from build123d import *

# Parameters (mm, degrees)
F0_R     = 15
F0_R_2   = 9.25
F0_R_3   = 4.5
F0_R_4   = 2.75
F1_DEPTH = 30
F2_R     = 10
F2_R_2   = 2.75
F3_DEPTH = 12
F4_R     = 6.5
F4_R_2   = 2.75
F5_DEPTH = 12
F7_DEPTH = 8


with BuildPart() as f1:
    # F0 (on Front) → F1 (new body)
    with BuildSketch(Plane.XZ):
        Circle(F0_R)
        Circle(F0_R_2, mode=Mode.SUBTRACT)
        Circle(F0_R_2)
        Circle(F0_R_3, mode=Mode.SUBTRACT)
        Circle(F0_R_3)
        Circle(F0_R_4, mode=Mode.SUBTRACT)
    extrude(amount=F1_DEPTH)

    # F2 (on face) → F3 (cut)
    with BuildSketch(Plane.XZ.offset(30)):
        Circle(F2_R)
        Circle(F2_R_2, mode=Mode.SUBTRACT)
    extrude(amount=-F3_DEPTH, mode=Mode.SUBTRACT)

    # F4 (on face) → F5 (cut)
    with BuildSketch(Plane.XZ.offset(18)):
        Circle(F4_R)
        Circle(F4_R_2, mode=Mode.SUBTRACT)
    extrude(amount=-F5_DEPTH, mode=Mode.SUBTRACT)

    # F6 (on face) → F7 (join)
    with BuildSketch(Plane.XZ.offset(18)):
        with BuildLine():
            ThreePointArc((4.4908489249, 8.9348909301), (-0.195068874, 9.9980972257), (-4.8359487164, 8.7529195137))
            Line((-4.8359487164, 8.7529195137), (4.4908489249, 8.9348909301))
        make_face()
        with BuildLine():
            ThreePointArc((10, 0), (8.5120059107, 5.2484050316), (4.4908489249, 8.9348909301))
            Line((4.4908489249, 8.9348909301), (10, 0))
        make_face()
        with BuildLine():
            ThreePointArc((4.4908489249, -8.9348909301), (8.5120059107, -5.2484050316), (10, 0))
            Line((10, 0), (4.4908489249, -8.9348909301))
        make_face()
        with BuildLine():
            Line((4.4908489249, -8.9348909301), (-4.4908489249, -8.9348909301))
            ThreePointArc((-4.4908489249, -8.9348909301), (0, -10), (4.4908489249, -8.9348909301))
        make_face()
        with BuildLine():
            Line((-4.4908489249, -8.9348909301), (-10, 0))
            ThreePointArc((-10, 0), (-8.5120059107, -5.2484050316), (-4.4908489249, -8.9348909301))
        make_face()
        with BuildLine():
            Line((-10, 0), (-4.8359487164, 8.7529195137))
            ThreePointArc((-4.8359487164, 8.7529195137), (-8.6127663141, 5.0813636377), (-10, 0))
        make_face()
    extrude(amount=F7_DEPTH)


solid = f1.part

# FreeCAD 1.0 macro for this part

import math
import FreeCAD as App
import Part
import Sketcher
Q = App.Units.Quantity

doc = App.newDocument("Part")
body = doc.addObject("PartDesign::Body", "Body")

sketch1 = body.newObject("Sketcher::SketchObject", "Sketch")
sketch1.AttachmentSupport = (doc.getObject("XZ_Plane"), [""])
sketch1.MapMode = "FlatFace"
sketch1.addGeometry(Part.Circle(App.Vector(0, 0, 0), App.Vector(0, 0, 1), 15), False)
sketch1.addGeometry(Part.Circle(App.Vector(0, 0, 0), App.Vector(0, 0, 1), 2.8), False)
sketch1.addConstraint(Sketcher.Constraint("Coincident", 0, 3, -1, 1))
sketch1.addConstraint(Sketcher.Constraint("Coincident", 1, 3, -1, 1))
sketch1.addConstraint(Sketcher.Constraint("Diameter", 0, Q("30 mm")))
sketch1.addConstraint(Sketcher.Constraint("Diameter", 1, Q("5.5 mm")))
pad1 = body.newObject("PartDesign::Pad", "Pad")
pad1.Profile = sketch1
pad1.Length = 30

sketch2 = body.newObject("Sketcher::SketchObject", "Sketch001")
sketch2.AttachmentSupport = (doc.getObject("XZ_Plane"), [""])
sketch2.MapMode = "FlatFace"
sketch2.AttachmentOffset = App.Placement(App.Vector(0, 0, 30), App.Rotation())
sketch2.addGeometry(Part.Circle(App.Vector(0, 0, 0), App.Vector(0, 0, 1), 10), False)
sketch2.addGeometry(Part.Circle(App.Vector(0, 0, 0), App.Vector(0, 0, 1), 2.8), False)
sketch2.addConstraint(Sketcher.Constraint("Coincident", 0, 3, -1, 1))
sketch2.addConstraint(Sketcher.Constraint("Coincident", 1, 3, -1, 1))
sketch2.addConstraint(Sketcher.Constraint("Diameter", 0, Q("20 mm")))
sketch2.addConstraint(Sketcher.Constraint("Diameter", 1, Q("5.5 mm")))
pocket1 = body.newObject("PartDesign::Pocket", "Pocket")
pocket1.Profile = sketch2
pocket1.Length = 12

sketch3 = body.newObject("Sketcher::SketchObject", "Sketch002")
sketch3.AttachmentSupport = (doc.getObject("XZ_Plane"), [""])
sketch3.MapMode = "FlatFace"
sketch3.AttachmentOffset = App.Placement(App.Vector(0, 0, 18), App.Rotation())
sketch3.addGeometry(Part.Circle(App.Vector(0, 0, 0), App.Vector(0, 0, 1), 6.5), False)
sketch3.addGeometry(Part.Circle(App.Vector(0, 0, 0), App.Vector(0, 0, 1), 2.8), False)
sketch3.addConstraint(Sketcher.Constraint("Coincident", 0, 3, -1, 1))
sketch3.addConstraint(Sketcher.Constraint("Coincident", 1, 3, -1, 1))
sketch3.addConstraint(Sketcher.Constraint("Diameter", 0, Q("13 mm")))
sketch3.addConstraint(Sketcher.Constraint("Diameter", 1, Q("5.5 mm")))
pocket2 = body.newObject("PartDesign::Pocket", "Pocket001")
pocket2.Profile = sketch3
pocket2.Length = 12

sketch4 = body.newObject("Sketcher::SketchObject", "Sketch003")
sketch4.AttachmentSupport = (doc.getObject("XZ_Plane"), [""])
sketch4.MapMode = "FlatFace"
sketch4.AttachmentOffset = App.Placement(App.Vector(0, 0, 18), App.Rotation())
sketch4.addGeometry(Part.ArcOfCircle(Part.Circle(App.Vector(0, 0, 0), App.Vector(0, 0, 1), 10), math.radians(63), math.radians(119)), False)
sketch4.addGeometry(Part.LineSegment(App.Vector(-5, 9, 0), App.Vector(4, 9, 0)), False)
sketch4.addGeometry(Part.ArcOfCircle(Part.Circle(App.Vector(0, 0, 0), App.Vector(0, 0, 1), 10), math.radians(0), math.radians(63)), False)
sketch4.addGeometry(Part.LineSegment(App.Vector(4, 9, 0), App.Vector(10, 0, 0)), False)
sketch4.addGeometry(Part.ArcOfCircle(Part.Circle(App.Vector(0, 0, 0), App.Vector(0, 0, 1), 10), math.radians(-63), math.radians(0)), False)
sketch4.addGeometry(Part.LineSegment(App.Vector(10, 0, 0), App.Vector(4, -9, 0)), False)
sketch4.addGeometry(Part.LineSegment(App.Vector(4, -9, 0), App.Vector(-4, -9, 0)), False)
sketch4.addGeometry(Part.ArcOfCircle(Part.Circle(App.Vector(0, 0, 0), App.Vector(0, 0, 1), 10), math.radians(-117), math.radians(-63)), False)
sketch4.addGeometry(Part.LineSegment(App.Vector(-4, -9, 0), App.Vector(-10, 0, 0)), False)
sketch4.addGeometry(Part.ArcOfCircle(Part.Circle(App.Vector(0, 0, 0), App.Vector(0, 0, 1), 10), math.radians(180), math.radians(243)), False)
sketch4.addGeometry(Part.LineSegment(App.Vector(-10, 0, 0), App.Vector(-5, 9, 0)), False)
sketch4.addGeometry(Part.ArcOfCircle(Part.Circle(App.Vector(0, 0, 0), App.Vector(0, 0, 1), 10), math.radians(119), math.radians(180)), False)
sketch4.addConstraint(Sketcher.Constraint("Coincident", 0, 1, 1, 2))
sketch4.addConstraint(Sketcher.Constraint("Coincident", 1, 1, 0, 2))
sketch4.addConstraint(Sketcher.Constraint("Coincident", 2, 1, 3, 2))
sketch4.addConstraint(Sketcher.Constraint("Coincident", 3, 1, 2, 2))
sketch4.addConstraint(Sketcher.Constraint("Coincident", 4, 1, 5, 2))
sketch4.addConstraint(Sketcher.Constraint("Coincident", 5, 1, 4, 2))
sketch4.addConstraint(Sketcher.Constraint("Coincident", 6, 1, 7, 2))
sketch4.addConstraint(Sketcher.Constraint("Coincident", 7, 1, 6, 2))
sketch4.addConstraint(Sketcher.Constraint("Coincident", 8, 1, 9, 2))
sketch4.addConstraint(Sketcher.Constraint("Coincident", 9, 1, 8, 2))
sketch4.addConstraint(Sketcher.Constraint("Coincident", 10, 1, 11, 2))
sketch4.addConstraint(Sketcher.Constraint("Coincident", 11, 1, 10, 2))
sketch4.addConstraint(Sketcher.Constraint("Horizontal", 6))
sketch4.addConstraint(Sketcher.Constraint("Coincident", 0, 3, -1, 1))
sketch4.addConstraint(Sketcher.Constraint("Coincident", 2, 3, -1, 1))
sketch4.addConstraint(Sketcher.Constraint("Coincident", 4, 3, -1, 1))
sketch4.addConstraint(Sketcher.Constraint("Coincident", 7, 3, -1, 1))
sketch4.addConstraint(Sketcher.Constraint("Coincident", 9, 3, -1, 1))
sketch4.addConstraint(Sketcher.Constraint("Coincident", 11, 3, -1, 1))
sketch4.addConstraint(Sketcher.Constraint("Coincident", 3, 1, 0, 1))
sketch4.addConstraint(Sketcher.Constraint("Coincident", 5, 1, 2, 1))
sketch4.addConstraint(Sketcher.Constraint("Coincident", 6, 1, 4, 1))
sketch4.addConstraint(Sketcher.Constraint("Coincident", 8, 1, 7, 1))
sketch4.addConstraint(Sketcher.Constraint("Coincident", 10, 1, 9, 1))
sketch4.addConstraint(Sketcher.Constraint("PointOnObject", 2, 1, -1))
sketch4.addConstraint(Sketcher.Constraint("PointOnObject", 9, 1, -1))
sketch4.addConstraint(Sketcher.Constraint("Parallel", 3, 8))
sketch4.addConstraint(Sketcher.Constraint("Radius", 0, Q("10 mm")))
sketch4.addConstraint(Sketcher.Constraint("Distance", 3, Q("10.49681 mm")))
sketch4.addConstraint(Sketcher.Constraint("DistanceX", 1, 1, -1, 1, Q("4.835949 mm")))
sketch4.addConstraint(Sketcher.Constraint("DistanceX", 11, 1, -1, 1, Q("4.835949 mm")))
pad2 = body.newObject("PartDesign::Pad", "Pad001")
pad2.Profile = sketch4
pad2.Length = 8

doc.recompute()
